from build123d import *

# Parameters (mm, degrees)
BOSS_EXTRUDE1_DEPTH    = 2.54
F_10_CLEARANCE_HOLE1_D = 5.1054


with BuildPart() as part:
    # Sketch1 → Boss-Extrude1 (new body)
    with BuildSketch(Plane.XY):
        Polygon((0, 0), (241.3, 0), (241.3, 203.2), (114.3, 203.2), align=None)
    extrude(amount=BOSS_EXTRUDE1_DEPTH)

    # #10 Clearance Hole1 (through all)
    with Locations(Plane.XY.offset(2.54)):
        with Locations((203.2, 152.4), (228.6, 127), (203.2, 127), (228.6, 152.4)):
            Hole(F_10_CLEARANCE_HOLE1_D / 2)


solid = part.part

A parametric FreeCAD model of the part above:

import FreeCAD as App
import Part
import Sketcher

V = App.Vector
Q = App.Units.Quantity

doc = App.newDocument("Part")
body = doc.addObject("PartDesign::Body", "Body")

# Sketch on XY plane
sketch1 = doc.addObject("Sketcher::SketchObject", "Sketch")
body.addObject(sketch1)
sketch1.AttachmentSupport = (doc.XY_Plane, [""])
sketch1.MapMode = "FlatFace"
sketch1.addGeometry([
    Part.LineSegment(V(0, 0, 0), V(241.3, 0, 0)),
    Part.LineSegment(V(241.3, 0, 0), V(241.3, 203.2, 0)),
    Part.LineSegment(V(241.3, 203.2, 0), V(114.3, 203.2, 0)),
    Part.LineSegment(V(114.3, 203.2, 0), V(0, 0, 0)),
], False)
sketch1.addConstraint([
    Sketcher.Constraint("Coincident", 0, 2, 1, 1),
    Sketcher.Constraint("Coincident", 1, 2, 2, 1),
    Sketcher.Constraint("Coincident", 2, 2, 3, 1),
    Sketcher.Constraint("Coincident", 3, 2, 0, 1),
    Sketcher.Constraint("Horizontal", 0),
    Sketcher.Constraint("Vertical", 1),
    Sketcher.Constraint("Horizontal", 2),
    Sketcher.Constraint("Coincident", 3, 2, -1, 1),
    Sketcher.Constraint("DistanceX", 2, 2, 2, 1, Q("5 in")),
    Sketcher.Constraint("DistanceY", 1, 1, 1, 2, Q("8 in")),
    Sketcher.Constraint("DistanceX", 0, 1, 0, 2, Q("9.5 in")),
])
pad1 = doc.addObject("PartDesign::Pad", "Pad")
body.addObject(pad1)
pad1.Profile = sketch1
pad1.Length = Q("0.1 in")

# Sketch on XY plane
sketch2 = doc.addObject("Sketcher::SketchObject", "Sketch001")
body.addObject(sketch2)
sketch2.AttachmentSupport = (doc.XY_Plane, [""])
sketch2.MapMode = "FlatFace"
sketch2.AttachmentOffset = App.Placement(V(0, 0, 0.1 * 25.4), App.Rotation())
sketch2.addGeometry([
    Part.Circle(V(203.2, 152.4, 0), V(0, 0, 1), 2.5527),
    Part.Circle(V(228.6, 127, 0), V(0, 0, 1), 2.5527),
    Part.Circle(V(203.2, 127, 0), V(0, 0, 1), 2.5527),
    Part.Circle(V(228.6, 152.4, 0), V(0, 0, 1), 2.5527),
], False)
sketch2.addConstraint([
    Sketcher.Constraint("Equal", 0, 1),
    Sketcher.Constraint("Equal", 1, 2),
    Sketcher.Constraint("Equal", 2, 3),
    Sketcher.Constraint("Horizontal", 1, 3, 2, 3),
    Sketcher.Constraint("Horizontal", 0, 3, 3, 3),
    Sketcher.Constraint("Vertical", 0, 3, 2, 3),
    Sketcher.Constraint("Vertical", 1, 3, 3, 3),
    Sketcher.Constraint("Diameter", 0, Q("0.201 in")),
    Sketcher.Constraint("DistanceX", -1, 1, 0, 3, Q("8 in")),
    Sketcher.Constraint("DistanceY", -1, 1, 0, 3, Q("6 in")),
    Sketcher.Constraint("DistanceX", -1, 1, 1, 3, Q("9 in")),
    Sketcher.Constraint("DistanceY", -1, 1, 1, 3, Q("5 in")),
])
doc.recompute()
hole = doc.addObject("PartDesign::Hole", "Hole")
body.addObject(hole)
hole.Profile = sketch2
hole.ThreadType = "None"
hole.Diameter = Q("0.201 in")
hole.DepthType = "ThroughAll"

doc.recompute()
